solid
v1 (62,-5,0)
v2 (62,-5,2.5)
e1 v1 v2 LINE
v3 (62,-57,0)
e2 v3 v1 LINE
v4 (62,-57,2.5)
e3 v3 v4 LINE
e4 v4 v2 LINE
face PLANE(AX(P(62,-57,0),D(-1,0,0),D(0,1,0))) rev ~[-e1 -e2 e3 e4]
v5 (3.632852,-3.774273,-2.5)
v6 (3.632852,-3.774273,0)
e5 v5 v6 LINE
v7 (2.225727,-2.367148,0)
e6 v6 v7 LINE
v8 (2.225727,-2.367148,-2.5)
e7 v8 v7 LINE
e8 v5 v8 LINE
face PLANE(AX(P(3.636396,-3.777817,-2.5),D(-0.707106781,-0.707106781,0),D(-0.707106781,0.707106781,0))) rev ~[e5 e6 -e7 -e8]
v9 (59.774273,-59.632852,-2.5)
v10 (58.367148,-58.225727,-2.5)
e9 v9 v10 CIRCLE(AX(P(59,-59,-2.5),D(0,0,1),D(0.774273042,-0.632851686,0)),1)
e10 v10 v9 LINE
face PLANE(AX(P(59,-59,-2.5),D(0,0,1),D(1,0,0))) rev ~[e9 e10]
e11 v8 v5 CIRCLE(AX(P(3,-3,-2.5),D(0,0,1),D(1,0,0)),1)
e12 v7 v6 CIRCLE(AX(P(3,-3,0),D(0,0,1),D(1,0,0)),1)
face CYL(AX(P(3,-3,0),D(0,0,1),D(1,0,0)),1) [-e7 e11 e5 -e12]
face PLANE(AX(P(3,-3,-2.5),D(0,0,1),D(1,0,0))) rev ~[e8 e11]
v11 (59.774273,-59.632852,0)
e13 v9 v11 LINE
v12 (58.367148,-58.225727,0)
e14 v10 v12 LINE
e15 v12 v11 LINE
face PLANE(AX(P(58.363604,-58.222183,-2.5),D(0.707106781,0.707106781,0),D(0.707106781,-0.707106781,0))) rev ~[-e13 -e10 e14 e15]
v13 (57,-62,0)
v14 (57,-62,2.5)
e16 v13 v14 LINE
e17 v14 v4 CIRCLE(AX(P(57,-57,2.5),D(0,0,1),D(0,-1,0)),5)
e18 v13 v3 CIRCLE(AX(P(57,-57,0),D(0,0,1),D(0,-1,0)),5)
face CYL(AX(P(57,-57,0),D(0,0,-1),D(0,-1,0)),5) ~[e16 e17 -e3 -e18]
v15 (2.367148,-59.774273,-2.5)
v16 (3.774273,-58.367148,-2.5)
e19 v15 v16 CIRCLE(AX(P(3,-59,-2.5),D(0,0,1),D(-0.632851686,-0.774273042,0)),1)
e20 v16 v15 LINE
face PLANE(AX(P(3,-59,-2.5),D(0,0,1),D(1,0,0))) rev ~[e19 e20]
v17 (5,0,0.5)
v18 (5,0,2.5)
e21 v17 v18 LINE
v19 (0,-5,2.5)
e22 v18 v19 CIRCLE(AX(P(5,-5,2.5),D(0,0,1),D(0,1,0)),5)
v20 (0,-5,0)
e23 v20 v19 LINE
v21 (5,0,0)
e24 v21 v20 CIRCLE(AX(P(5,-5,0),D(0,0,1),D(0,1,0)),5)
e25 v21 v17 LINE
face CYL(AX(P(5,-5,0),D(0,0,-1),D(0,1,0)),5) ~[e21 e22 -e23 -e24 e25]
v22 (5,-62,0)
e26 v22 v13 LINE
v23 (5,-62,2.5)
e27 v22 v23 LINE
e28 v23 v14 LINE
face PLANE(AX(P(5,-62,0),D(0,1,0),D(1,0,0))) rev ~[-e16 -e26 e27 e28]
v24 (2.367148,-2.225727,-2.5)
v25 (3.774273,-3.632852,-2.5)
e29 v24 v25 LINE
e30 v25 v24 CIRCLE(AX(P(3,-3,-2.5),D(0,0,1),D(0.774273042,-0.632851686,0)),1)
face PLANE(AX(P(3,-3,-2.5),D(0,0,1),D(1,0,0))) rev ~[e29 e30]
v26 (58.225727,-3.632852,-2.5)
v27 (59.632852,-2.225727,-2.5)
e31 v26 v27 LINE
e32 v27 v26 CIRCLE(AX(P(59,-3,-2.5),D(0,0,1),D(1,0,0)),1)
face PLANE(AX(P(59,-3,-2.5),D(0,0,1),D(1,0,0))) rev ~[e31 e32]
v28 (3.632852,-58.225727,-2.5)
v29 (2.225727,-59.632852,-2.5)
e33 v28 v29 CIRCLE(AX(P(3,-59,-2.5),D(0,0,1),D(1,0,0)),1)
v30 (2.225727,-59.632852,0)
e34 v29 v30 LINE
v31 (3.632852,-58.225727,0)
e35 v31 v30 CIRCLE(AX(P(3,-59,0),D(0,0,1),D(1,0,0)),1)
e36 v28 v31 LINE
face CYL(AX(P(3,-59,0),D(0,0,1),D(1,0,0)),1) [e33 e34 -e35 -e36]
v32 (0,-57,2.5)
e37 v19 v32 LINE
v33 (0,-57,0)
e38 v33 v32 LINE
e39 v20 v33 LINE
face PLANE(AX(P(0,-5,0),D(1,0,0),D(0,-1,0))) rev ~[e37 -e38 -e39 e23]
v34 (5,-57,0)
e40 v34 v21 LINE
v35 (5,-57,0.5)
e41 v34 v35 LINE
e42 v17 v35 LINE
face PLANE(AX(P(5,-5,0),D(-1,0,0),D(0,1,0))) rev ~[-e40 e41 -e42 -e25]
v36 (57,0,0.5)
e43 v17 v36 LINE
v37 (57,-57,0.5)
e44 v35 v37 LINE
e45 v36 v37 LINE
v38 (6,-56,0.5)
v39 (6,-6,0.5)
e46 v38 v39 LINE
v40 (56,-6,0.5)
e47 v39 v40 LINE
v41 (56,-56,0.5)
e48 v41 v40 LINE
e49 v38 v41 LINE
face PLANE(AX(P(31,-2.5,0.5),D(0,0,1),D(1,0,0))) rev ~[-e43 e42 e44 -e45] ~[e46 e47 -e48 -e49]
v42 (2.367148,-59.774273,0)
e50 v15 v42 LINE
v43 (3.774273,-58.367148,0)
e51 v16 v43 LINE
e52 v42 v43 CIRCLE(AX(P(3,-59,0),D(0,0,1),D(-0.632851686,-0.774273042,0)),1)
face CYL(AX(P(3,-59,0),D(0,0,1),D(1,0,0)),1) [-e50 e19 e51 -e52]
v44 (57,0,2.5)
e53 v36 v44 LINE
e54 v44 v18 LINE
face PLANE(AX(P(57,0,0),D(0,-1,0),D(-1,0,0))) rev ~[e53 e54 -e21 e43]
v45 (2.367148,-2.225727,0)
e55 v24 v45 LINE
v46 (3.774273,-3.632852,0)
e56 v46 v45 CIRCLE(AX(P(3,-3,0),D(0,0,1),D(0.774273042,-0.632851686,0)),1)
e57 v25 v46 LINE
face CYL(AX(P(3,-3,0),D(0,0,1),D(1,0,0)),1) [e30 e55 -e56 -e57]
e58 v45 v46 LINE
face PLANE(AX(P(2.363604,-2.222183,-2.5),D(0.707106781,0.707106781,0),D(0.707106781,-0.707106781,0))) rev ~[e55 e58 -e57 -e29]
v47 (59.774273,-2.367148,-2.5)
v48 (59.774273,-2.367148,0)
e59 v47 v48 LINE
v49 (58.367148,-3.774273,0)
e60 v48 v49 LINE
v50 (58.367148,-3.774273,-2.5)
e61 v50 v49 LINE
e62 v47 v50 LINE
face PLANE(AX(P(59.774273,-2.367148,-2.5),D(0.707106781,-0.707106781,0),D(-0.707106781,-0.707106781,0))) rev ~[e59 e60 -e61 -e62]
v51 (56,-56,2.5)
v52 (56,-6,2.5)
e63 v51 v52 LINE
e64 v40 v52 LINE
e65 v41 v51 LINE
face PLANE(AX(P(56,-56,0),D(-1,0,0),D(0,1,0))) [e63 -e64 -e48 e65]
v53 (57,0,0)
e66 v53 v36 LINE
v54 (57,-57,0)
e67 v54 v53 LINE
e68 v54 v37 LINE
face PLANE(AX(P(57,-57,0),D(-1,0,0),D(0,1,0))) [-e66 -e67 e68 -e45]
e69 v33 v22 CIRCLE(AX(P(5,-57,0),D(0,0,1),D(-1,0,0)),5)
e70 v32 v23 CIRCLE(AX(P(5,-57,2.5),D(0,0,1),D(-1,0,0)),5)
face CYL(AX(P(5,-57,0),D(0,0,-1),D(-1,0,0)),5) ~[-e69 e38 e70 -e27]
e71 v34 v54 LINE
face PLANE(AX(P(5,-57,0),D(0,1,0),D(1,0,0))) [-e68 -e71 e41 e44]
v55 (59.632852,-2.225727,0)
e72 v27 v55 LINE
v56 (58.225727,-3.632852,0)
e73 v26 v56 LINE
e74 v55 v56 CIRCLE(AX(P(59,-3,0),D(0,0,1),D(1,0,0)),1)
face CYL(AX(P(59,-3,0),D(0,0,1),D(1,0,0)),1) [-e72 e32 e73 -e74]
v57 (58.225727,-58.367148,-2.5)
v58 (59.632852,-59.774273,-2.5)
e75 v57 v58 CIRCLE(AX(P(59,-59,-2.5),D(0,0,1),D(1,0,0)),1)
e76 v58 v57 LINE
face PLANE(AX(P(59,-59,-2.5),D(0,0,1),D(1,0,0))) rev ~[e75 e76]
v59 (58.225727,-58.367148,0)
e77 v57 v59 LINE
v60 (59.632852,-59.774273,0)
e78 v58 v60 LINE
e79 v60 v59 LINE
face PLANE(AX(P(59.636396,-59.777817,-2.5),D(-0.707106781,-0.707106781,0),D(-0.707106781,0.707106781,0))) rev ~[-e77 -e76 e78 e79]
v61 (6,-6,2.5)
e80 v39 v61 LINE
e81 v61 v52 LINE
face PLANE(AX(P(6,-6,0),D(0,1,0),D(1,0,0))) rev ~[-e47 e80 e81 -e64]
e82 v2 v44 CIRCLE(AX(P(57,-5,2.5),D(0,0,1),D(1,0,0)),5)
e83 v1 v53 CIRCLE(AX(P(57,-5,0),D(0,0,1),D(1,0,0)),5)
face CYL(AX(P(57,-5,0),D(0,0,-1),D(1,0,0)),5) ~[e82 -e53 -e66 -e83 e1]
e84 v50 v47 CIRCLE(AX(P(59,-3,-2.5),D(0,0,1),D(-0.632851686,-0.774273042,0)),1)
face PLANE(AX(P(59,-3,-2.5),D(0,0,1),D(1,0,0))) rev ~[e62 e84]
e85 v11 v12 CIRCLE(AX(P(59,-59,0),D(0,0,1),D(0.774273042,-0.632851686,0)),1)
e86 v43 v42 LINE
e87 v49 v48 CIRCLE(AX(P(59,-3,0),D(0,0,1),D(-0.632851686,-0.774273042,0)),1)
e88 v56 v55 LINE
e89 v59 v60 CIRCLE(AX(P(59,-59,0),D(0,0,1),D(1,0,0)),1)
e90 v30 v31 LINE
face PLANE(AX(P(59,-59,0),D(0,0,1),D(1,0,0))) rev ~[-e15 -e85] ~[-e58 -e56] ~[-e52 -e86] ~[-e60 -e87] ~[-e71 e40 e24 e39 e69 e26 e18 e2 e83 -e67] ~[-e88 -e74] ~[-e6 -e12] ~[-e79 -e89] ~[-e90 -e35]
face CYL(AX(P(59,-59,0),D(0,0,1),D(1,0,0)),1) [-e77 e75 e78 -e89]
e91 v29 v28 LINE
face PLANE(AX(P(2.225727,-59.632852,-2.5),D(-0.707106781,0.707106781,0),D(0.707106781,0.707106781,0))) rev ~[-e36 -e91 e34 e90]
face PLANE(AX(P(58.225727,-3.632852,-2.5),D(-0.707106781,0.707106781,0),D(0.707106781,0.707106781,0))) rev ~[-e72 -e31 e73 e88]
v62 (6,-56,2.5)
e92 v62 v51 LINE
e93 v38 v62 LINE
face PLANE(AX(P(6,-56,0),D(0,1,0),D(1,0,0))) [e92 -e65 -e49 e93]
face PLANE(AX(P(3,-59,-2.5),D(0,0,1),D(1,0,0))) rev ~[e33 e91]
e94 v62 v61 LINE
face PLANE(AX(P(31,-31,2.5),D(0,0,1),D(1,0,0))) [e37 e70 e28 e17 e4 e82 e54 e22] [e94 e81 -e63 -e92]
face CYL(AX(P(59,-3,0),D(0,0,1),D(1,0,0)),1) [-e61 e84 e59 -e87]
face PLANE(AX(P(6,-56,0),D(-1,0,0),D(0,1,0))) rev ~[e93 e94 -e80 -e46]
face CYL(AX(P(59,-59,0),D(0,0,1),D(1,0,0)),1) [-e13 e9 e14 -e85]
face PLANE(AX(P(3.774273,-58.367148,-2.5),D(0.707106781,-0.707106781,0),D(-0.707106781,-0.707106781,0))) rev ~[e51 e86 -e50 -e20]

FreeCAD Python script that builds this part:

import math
import FreeCAD as App
import Part
import Sketcher

V = App.Vector
Q = App.Units.Quantity


def add_polygon(sketch, points):
    """Adds a closed chain of lines whose ends are joined by coincident constraints."""
    first, n = sketch.GeometryCount, len(points)
    for a, b in zip(points, points[1:] + points[:1]):
        sketch.addGeometry(Part.LineSegment(App.Vector(*a, 0), App.Vector(*b, 0)), False)
    for i in range(n):
        sketch.addConstraint(Sketcher.Constraint("Coincident", first + i, 2, first + (i + 1) % n, 1))

doc = App.newDocument("Part")
body = doc.addObject("PartDesign::Body", "Body")

# Sketch on XY plane
sketch1 = doc.addObject("Sketcher::SketchObject", "Sketch")
body.addObject(sketch1)
sketch1.AttachmentSupport = (doc.XY_Plane, [""])
sketch1.MapMode = "FlatFace"
sketch1.addGeometry(Part.LineSegment(V(57, 0, 0), V(5, 0, 0)), False)  # 0
sketch1.addGeometry(Part.ArcOfCircle(Part.Circle(V(5, -5, 0), V(0, 0, 1), 5), math.radians(90), math.radians(180)), False)  # 1
sketch1.addGeometry(Part.LineSegment(V(0, -5, 0), V(0, -57, 0)), False)  # 2
sketch1.addGeometry(Part.ArcOfCircle(Part.Circle(V(5, -57, 0), V(0, 0, 1), 5), math.radians(180), math.radians(270)), False)  # 3
sketch1.addGeometry(Part.LineSegment(V(5, -62, 0), V(57, -62, 0)), False)  # 4
sketch1.addGeometry(Part.ArcOfCircle(Part.Circle(V(57, -57, 0), V(0, 0, 1), 5), math.radians(-90), math.radians(0)), False)  # 5
sketch1.addGeometry(Part.LineSegment(V(62, -57, 0), V(62, -5, 0)), False)  # 6
sketch1.addGeometry(Part.ArcOfCircle(Part.Circle(V(57, -5, 0), V(0, 0, 1), 5), math.radians(0), math.radians(90)), False)  # 7
sketch1.addGeometry(Part.Circle(V(3, -59, 0), V(0, 0, 1), 1), False)  # 8
sketch1.addGeometry(Part.Circle(V(59, -59, 0), V(0, 0, 1), 1), False)  # 9
sketch1.addGeometry(Part.Circle(V(3, -3, 0), V(0, 0, 1), 1), False)  # 10
add_polygon(sketch1, [(56, -56), (6, -56), (6, -6), (56, -6)])  # lines 11-14
sketch1.addGeometry(Part.Circle(V(59, -3, 0), V(0, 0, 1), 1), False)  # 15
sketch1.addConstraint(Sketcher.Constraint("Tangent", 0, 2, 1, 1))
sketch1.addConstraint(Sketcher.Constraint("Tangent", 1, 2, 2, 1))
sketch1.addConstraint(Sketcher.Constraint("Tangent", 2, 2, 3, 1))
sketch1.addConstraint(Sketcher.Constraint("Tangent", 3, 2, 4, 1))
sketch1.addConstraint(Sketcher.Constraint("Tangent", 4, 2, 5, 1))
sketch1.addConstraint(Sketcher.Constraint("Tangent", 5, 2, 6, 1))
sketch1.addConstraint(Sketcher.Constraint("Tangent", 6, 2, 7, 1))
sketch1.addConstraint(Sketcher.Constraint("Tangent", 7, 2, 0, 1))
sketch1.addConstraint(Sketcher.Constraint("Horizontal", 0))
sketch1.addConstraint(Sketcher.Constraint("Vertical", 2))
sketch1.addConstraint(Sketcher.Constraint("Horizontal", 4))
sketch1.addConstraint(Sketcher.Constraint("Vertical", 6))
sketch1.addConstraint(Sketcher.Constraint("Horizontal", 11))
sketch1.addConstraint(Sketcher.Constraint("Vertical", 12))
sketch1.addConstraint(Sketcher.Constraint("Horizontal", 13))
sketch1.addConstraint(Sketcher.Constraint("Vertical", 14))
sketch1.addConstraint(Sketcher.Constraint("Equal", 1, 3))
sketch1.addConstraint(Sketcher.Constraint("Equal", 3, 5))
sketch1.addConstraint(Sketcher.Constraint("Equal", 5, 7))
sketch1.addConstraint(Sketcher.Constraint("Equal", 8, 9))
sketch1.addConstraint(Sketcher.Constraint("Equal", 9, 10))
sketch1.addConstraint(Sketcher.Constraint("Equal", 10, 15))
sketch1.addConstraint(Sketcher.Constraint("PointOnObject", 0, 2, -1))
sketch1.addConstraint(Sketcher.Constraint("PointOnObject", 1, 2, -2))
sketch1.addConstraint(Sketcher.Constraint("Horizontal", 8, 3, 9, 3))
sketch1.addConstraint(Sketcher.Constraint("Horizontal", 10, 3, 15, 3))
sketch1.addConstraint(Sketcher.Constraint("Vertical", 8, 3, 10, 3))
sketch1.addConstraint(Sketcher.Constraint("Vertical", 9, 3, 15, 3))
sketch1.addConstraint(Sketcher.Constraint("Equal", 4, 2))
sketch1.addConstraint(Sketcher.Constraint("Equal", 13, 12))
sketch1.addConstraint(Sketcher.Constraint("Diameter", 8, 2.0))
sketch1.addConstraint(Sketcher.Constraint("Radius", 1, 5.0))
sketch1.addConstraint(Sketcher.Constraint("DistanceX", 0, 2, 0, 1, 52.0))
sketch1.addConstraint(Sketcher.Constraint("DistanceX", 11, 2, 11, 1, 50.0))
sketch1.addConstraint(Sketcher.Constraint("DistanceX", -1, 1, 8, 3, 3.0))
sketch1.addConstraint(Sketcher.Constraint("DistanceY", 8, 3, -1, 1, 59.0))
sketch1.addConstraint(Sketcher.Constraint("DistanceX", -1, 1, 9, 3, 59.0))
sketch1.addConstraint(Sketcher.Constraint("DistanceY", 10, 3, -1, 1, 3.0))
sketch1.addConstraint(Sketcher.Constraint("DistanceX", -1, 1, 11, 2, 6.0))
sketch1.addConstraint(Sketcher.Constraint("DistanceY", 11, 2, -1, 1, 56.0))
pad1 = doc.addObject("PartDesign::Pad", "Pad")
body.addObject(pad1)
pad1.Profile = sketch1
pad1.Length = 2.5

# Sketch on XY plane
sketch2 = doc.addObject("Sketcher::SketchObject", "Sketch001")
body.addObject(sketch2)
sketch2.AttachmentSupport = (doc.XY_Plane, [""])
sketch2.MapMode = "FlatFace"
add_polygon(sketch2, [(5, -5), (5, -57), (57, -57), (57, -5)])  # lines 0-3
add_polygon(sketch2, [(56, -56), (6, -56), (6, -6), (56, -6)])  # lines 4-7
sketch2.addConstraint(Sketcher.Constraint("Vertical", 0))
sketch2.addConstraint(Sketcher.Constraint("Horizontal", 1))
sketch2.addConstraint(Sketcher.Constraint("Vertical", 2))
sketch2.addConstraint(Sketcher.Constraint("Horizontal", 3))
sketch2.addConstraint(Sketcher.Constraint("Horizontal", 4))
sketch2.addConstraint(Sketcher.Constraint("Vertical", 5))
sketch2.addConstraint(Sketcher.Constraint("Horizontal", 6))
sketch2.addConstraint(Sketcher.Constraint("Vertical", 7))
sketch2.addConstraint(Sketcher.Constraint("Equal", 3, 0))
sketch2.addConstraint(Sketcher.Constraint("Equal", 6, 5))
sketch2.addConstraint(Sketcher.Constraint("DistanceX", 1, 1, 1, 2, 52.0))
sketch2.addConstraint(Sketcher.Constraint("DistanceX", 4, 2, 4, 1, 50.0))
sketch2.addConstraint(Sketcher.Constraint("DistanceX", -1, 1, 0, 2, 5.0))
sketch2.addConstraint(Sketcher.Constraint("DistanceY", 0, 2, -1, 1, 57.0))
sketch2.addConstraint(Sketcher.Constraint("DistanceX", -1, 1, 4, 2, 6.0))
sketch2.addConstraint(Sketcher.Constraint("DistanceY", 4, 2, -1, 1, 56.0))
pocket1 = doc.addObject("PartDesign::Pocket", "Pocket")
body.addObject(pocket1)
pocket1.Profile = sketch2
pocket1.Length = 0.5
pocket1.Reversed = True

# Sketch on XY plane
sketch3 = doc.addObject("Sketcher::SketchObject", "Sketch002")
body.addObject(sketch3)
sketch3.AttachmentSupport = (doc.XY_Plane, [""])
sketch3.MapMode = "FlatFace"
add_polygon(sketch3, [(5, 0), (5, -5), (57, -5), (57, 0)])  # lines 0-3
sketch3.addConstraint(Sketcher.Constraint("Vertical", 0))
sketch3.addConstraint(Sketcher.Constraint("Horizontal", 1))
sketch3.addConstraint(Sketcher.Constraint("Vertical", 2))
sketch3.addConstraint(Sketcher.Constraint("Horizontal", 3))
sketch3.addConstraint(Sketcher.Constraint("PointOnObject", 2, 2, -1))
sketch3.addConstraint(Sketcher.Constraint("DistanceX", 1, 1, 1, 2, 52.0))
sketch3.addConstraint(Sketcher.Constraint("DistanceY", 0, 2, 0, 1, 5.0))
sketch3.addConstraint(Sketcher.Constraint("DistanceX", -1, 1, 0, 2, 5.0))
pocket2 = doc.addObject("PartDesign::Pocket", "Pocket001")
body.addObject(pocket2)
pocket2.Profile = sketch3
pocket2.Length = 0.5
pocket2.Reversed = True

# Sketch on XY plane
sketch4 = doc.addObject("Sketcher::SketchObject", "Sketch003")
body.addObject(sketch4)
sketch4.AttachmentSupport = (doc.XY_Plane, [""])
sketch4.MapMode = "FlatFace"
sketch4.addGeometry(Part.Circle(V(59, -59, 0), V(0, 0, 1), 1), False)
sketch4.addGeometry(Part.Circle(V(59, -3, 0), V(0, 0, 1), 1), False)
sketch4.addGeometry(Part.Circle(V(3, -3, 0), V(0, 0, 1), 1), False)
sketch4.addGeometry(Part.Circle(V(3, -59, 0), V(0, 0, 1), 1), False)
sketch4.addConstraint(Sketcher.Constraint("Equal", 0, 1))
sketch4.addConstraint(Sketcher.Constraint("Equal", 1, 2))
sketch4.addConstraint(Sketcher.Constraint("Equal", 2, 3))
sketch4.addConstraint(Sketcher.Constraint("Horizontal", 1, 3, 2, 3))
sketch4.addConstraint(Sketcher.Constraint("Horizontal", 0, 3, 3, 3))
sketch4.addConstraint(Sketcher.Constraint("Vertical", 0, 3, 1, 3))
sketch4.addConstraint(Sketcher.Constraint("Vertical", 2, 3, 3, 3))
sketch4.addConstraint(Sketcher.Constraint("Diameter", 0, 2.0))
sketch4.addConstraint(Sketcher.Constraint("DistanceX", -1, 1, 0, 3, 59.0))
sketch4.addConstraint(Sketcher.Constraint("DistanceY", 0, 3, -1, 1, 59.0))
sketch4.addConstraint(Sketcher.Constraint("DistanceY", 1, 3, -1, 1, 3.0))
sketch4.addConstraint(Sketcher.Constraint("DistanceX", -1, 1, 2, 3, 3.0))
pad2 = doc.addObject("PartDesign::Pad", "Pad001")
body.addObject(pad2)
pad2.Profile = sketch4
pad2.Type = "TwoLengths"
pad2.Length = 2.5
pad2.Length2 = 2.5

# Sketch on XY plane
sketch5 = doc.addObject("Sketcher::SketchObject", "Sketch004")
body.addObject(sketch5)
sketch5.AttachmentSupport = (doc.XY_Plane, [""])
sketch5.MapMode = "FlatFace"
sketch5.AttachmentOffset = App.Placement(V(0, 0, -2.5), App.Rotation())
sketch5.addGeometry(Part.ArcOfCircle(Part.Circle(V(59, -3, 0), V(0, 0, 1), 1), math.radians(-140.74), math.radians(-129.26)), False)
sketch5.addGeometry(Part.LineSegment(V(58.23, -3.63, 0), V(59.63, -2.23, 0)), False)
sketch5.addGeometry(Part.ArcOfCircle(Part.Circle(V(59, -3, 0), V(0, 0, 1), 1), math.radians(39.26), math.radians(50.74)), False)
sketch5.addGeometry(Part.LineSegment(V(59.77, -2.37, 0), V(58.37, -3.77, 0)), False)
sketch5.addConstraint(Sketcher.Constraint("Coincident", 0, 1, 1, 1))
sketch5.addConstraint(Sketcher.Constraint("Coincident", 1, 2, 2, 2))
sketch5.addConstraint(Sketcher.Constraint("Coincident", 2, 1, 3, 1))
sketch5.addConstraint(Sketcher.Constraint("Coincident", 3, 2, 0, 2))
sketch5.addConstraint(Sketcher.Constraint("Coincident", 2, 3, 0, 3))
sketch5.addConstraint(Sketcher.Constraint("Equal", 0, 2))
sketch5.addConstraint(Sketcher.Constraint("Parallel", 1, 3))
sketch5.addConstraint(Sketcher.Constraint("Equal", 1, 3))
sketch5.addConstraint(Sketcher.Constraint("Radius", 0, 1.0))
sketch5.addConstraint(Sketcher.Constraint("Angle", 1, Q("45 deg")))
sketch5.addConstraint(Sketcher.Constraint("DistanceX", -1, 1, 0, 3, 59.0))
sketch5.addConstraint(Sketcher.Constraint("DistanceY", 0, 3, -1, 1, 3.0))
sketch5.addConstraint(Sketcher.Constraint("DistanceY", 0, 1, -1, 1, 3.632852))
pocket3 = doc.addObject("PartDesign::Pocket", "Pocket002")
body.addObject(pocket3)
pocket3.Profile = sketch5
pocket3.Length = 2.5
pocket3.Reversed = True

# Sketch on XY plane
sketch6 = doc.addObject("Sketcher::SketchObject", "Sketch005")
body.addObject(sketch6)
sketch6.AttachmentSupport = (doc.XY_Plane, [""])
sketch6.MapMode = "FlatFace"
sketch6.AttachmentOffset = App.Placement(V(0, 0, -2.5), App.Rotation())
sketch6.addGeometry(Part.ArcOfCircle(Part.Circle(V(58.29, -58.29, 0), V(0, 0, 1), 0.1), math.radians(45), math.radians(225)), False)
sketch6.addGeometry(Part.LineSegment(V(58.36, -58.22, 0), V(59.78, -59.64, 0)), False)
sketch6.addGeometry(Part.ArcOfCircle(Part.Circle(V(59.71, -59.71, 0), V(0, 0, 1), 0.1), math.radians(-135), math.radians(45)), False)
sketch6.addGeometry(Part.LineSegment(V(59.64, -59.78, 0), V(58.22, -58.36, 0)), False)
sketch6.addGeometry(Part.ArcOfCircle(Part.Circle(V(2.29, -2.29, 0), V(0, 0, 1), 0.1), math.radians(45), math.radians(225)), False)
sketch6.addGeometry(Part.LineSegment(V(2.36, -2.22, 0), V(3.78, -3.64, 0)), False)
sketch6.addGeometry(Part.ArcOfCircle(Part.Circle(V(3.71, -3.71, 0), V(0, 0, 1), 0.1), math.radians(-135), math.radians(45)), False)
sketch6.addGeometry(Part.LineSegment(V(3.64, -3.78, 0), V(2.22, -2.36, 0)), False)
sketch6.addGeometry(Part.ArcOfCircle(Part.Circle(V(3, -59, 0), V(0, 0, 1), 1), math.radians(-140.74), math.radians(-129.26)), False)
sketch6.addGeometry(Part.LineSegment(V(2.23, -59.63, 0), V(3.63, -58.23, 0)), False)
sketch6.addGeometry(Part.ArcOfCircle(Part.Circle(V(3, -59, 0), V(0, 0, 1), 1), math.radians(39.26), math.radians(50.74)), False)
sketch6.addGeometry(Part.LineSegment(V(3.77, -58.37, 0), V(2.37, -59.77, 0)), False)
sketch6.addConstraint(Sketcher.Constraint("Tangent", 0, 1, 1, 1))
sketch6.addConstraint(Sketcher.Constraint("Tangent", 1, 2, 2, 2))
sketch6.addConstraint(Sketcher.Constraint("Tangent", 2, 1, 3, 1))
sketch6.addConstraint(Sketcher.Constraint("Tangent", 3, 2, 0, 2))
sketch6.addConstraint(Sketcher.Constraint("Tangent", 4, 1, 5, 1))
sketch6.addConstraint(Sketcher.Constraint("Tangent", 5, 2, 6, 2))
sketch6.addConstraint(Sketcher.Constraint("Tangent", 6, 1, 7, 1))
sketch6.addConstraint(Sketcher.Constraint("Tangent", 7, 2, 4, 2))
sketch6.addConstraint(Sketcher.Constraint("Coincident", 8, 1, 9, 1))
sketch6.addConstraint(Sketcher.Constraint("Coincident", 9, 2, 10, 2))
sketch6.addConstraint(Sketcher.Constraint("Coincident", 10, 1, 11, 1))
sketch6.addConstraint(Sketcher.Constraint("Coincident", 11, 2, 8, 2))
sketch6.addConstraint(Sketcher.Constraint("Coincident", 10, 3, 8, 3))
sketch6.addConstraint(Sketcher.Constraint("Equal", 0, 2))
sketch6.addConstraint(Sketcher.Constraint("Equal", 2, 4))
sketch6.addConstraint(Sketcher.Constraint("Equal", 4, 6))
sketch6.addConstraint(Sketcher.Constraint("Equal", 8, 10))
sketch6.addConstraint(Sketcher.Constraint("Parallel", 3, 5))
sketch6.addConstraint(Sketcher.Constraint("Perpendicular", 7, 9))
sketch6.addConstraint(Sketcher.Constraint("Parallel", 9, 11))
sketch6.addConstraint(Sketcher.Constraint("Equal", 3, 5))
sketch6.addConstraint(Sketcher.Constraint("Equal", 9, 11))
sketch6.addConstraint(Sketcher.Constraint("Radius", 8, 1.0))
sketch6.addConstraint(Sketcher.Constraint("Radius", 0, 0.1))
sketch6.addConstraint(Sketcher.Constraint("Angle", 1, Q("-45 deg")))
sketch6.addConstraint(Sketcher.Constraint("Distance", 1, 2.0))
sketch6.addConstraint(Sketcher.Constraint("DistanceX", -1, 1, 8, 3, 3.0))
sketch6.addConstraint(Sketcher.Constraint("DistanceY", 8, 3, -1, 1, 59.0))
sketch6.addConstraint(Sketcher.Constraint("DistanceX", 4, 3, 0, 3, 56.0))
sketch6.addConstraint(Sketcher.Constraint("DistanceY", 0, 3, 4, 3, 56.0))
sketch6.addConstraint(Sketcher.Constraint("DistanceY", 8, 1, -1, 1, 59.632852))
sketch6.addConstraint(Sketcher.Constraint("DistanceX", 8, 1, 6, 1, 1.410669))
sketch6.addConstraint(Sketcher.Constraint("DistanceY", 9, 2, 6, 1, 54.447909))
pocket4 = doc.addObject("PartDesign::Pocket", "Pocket003")
body.addObject(pocket4)
pocket4.Profile = sketch6
pocket4.Length = 2.5
pocket4.Reversed = True

doc.recompute()
